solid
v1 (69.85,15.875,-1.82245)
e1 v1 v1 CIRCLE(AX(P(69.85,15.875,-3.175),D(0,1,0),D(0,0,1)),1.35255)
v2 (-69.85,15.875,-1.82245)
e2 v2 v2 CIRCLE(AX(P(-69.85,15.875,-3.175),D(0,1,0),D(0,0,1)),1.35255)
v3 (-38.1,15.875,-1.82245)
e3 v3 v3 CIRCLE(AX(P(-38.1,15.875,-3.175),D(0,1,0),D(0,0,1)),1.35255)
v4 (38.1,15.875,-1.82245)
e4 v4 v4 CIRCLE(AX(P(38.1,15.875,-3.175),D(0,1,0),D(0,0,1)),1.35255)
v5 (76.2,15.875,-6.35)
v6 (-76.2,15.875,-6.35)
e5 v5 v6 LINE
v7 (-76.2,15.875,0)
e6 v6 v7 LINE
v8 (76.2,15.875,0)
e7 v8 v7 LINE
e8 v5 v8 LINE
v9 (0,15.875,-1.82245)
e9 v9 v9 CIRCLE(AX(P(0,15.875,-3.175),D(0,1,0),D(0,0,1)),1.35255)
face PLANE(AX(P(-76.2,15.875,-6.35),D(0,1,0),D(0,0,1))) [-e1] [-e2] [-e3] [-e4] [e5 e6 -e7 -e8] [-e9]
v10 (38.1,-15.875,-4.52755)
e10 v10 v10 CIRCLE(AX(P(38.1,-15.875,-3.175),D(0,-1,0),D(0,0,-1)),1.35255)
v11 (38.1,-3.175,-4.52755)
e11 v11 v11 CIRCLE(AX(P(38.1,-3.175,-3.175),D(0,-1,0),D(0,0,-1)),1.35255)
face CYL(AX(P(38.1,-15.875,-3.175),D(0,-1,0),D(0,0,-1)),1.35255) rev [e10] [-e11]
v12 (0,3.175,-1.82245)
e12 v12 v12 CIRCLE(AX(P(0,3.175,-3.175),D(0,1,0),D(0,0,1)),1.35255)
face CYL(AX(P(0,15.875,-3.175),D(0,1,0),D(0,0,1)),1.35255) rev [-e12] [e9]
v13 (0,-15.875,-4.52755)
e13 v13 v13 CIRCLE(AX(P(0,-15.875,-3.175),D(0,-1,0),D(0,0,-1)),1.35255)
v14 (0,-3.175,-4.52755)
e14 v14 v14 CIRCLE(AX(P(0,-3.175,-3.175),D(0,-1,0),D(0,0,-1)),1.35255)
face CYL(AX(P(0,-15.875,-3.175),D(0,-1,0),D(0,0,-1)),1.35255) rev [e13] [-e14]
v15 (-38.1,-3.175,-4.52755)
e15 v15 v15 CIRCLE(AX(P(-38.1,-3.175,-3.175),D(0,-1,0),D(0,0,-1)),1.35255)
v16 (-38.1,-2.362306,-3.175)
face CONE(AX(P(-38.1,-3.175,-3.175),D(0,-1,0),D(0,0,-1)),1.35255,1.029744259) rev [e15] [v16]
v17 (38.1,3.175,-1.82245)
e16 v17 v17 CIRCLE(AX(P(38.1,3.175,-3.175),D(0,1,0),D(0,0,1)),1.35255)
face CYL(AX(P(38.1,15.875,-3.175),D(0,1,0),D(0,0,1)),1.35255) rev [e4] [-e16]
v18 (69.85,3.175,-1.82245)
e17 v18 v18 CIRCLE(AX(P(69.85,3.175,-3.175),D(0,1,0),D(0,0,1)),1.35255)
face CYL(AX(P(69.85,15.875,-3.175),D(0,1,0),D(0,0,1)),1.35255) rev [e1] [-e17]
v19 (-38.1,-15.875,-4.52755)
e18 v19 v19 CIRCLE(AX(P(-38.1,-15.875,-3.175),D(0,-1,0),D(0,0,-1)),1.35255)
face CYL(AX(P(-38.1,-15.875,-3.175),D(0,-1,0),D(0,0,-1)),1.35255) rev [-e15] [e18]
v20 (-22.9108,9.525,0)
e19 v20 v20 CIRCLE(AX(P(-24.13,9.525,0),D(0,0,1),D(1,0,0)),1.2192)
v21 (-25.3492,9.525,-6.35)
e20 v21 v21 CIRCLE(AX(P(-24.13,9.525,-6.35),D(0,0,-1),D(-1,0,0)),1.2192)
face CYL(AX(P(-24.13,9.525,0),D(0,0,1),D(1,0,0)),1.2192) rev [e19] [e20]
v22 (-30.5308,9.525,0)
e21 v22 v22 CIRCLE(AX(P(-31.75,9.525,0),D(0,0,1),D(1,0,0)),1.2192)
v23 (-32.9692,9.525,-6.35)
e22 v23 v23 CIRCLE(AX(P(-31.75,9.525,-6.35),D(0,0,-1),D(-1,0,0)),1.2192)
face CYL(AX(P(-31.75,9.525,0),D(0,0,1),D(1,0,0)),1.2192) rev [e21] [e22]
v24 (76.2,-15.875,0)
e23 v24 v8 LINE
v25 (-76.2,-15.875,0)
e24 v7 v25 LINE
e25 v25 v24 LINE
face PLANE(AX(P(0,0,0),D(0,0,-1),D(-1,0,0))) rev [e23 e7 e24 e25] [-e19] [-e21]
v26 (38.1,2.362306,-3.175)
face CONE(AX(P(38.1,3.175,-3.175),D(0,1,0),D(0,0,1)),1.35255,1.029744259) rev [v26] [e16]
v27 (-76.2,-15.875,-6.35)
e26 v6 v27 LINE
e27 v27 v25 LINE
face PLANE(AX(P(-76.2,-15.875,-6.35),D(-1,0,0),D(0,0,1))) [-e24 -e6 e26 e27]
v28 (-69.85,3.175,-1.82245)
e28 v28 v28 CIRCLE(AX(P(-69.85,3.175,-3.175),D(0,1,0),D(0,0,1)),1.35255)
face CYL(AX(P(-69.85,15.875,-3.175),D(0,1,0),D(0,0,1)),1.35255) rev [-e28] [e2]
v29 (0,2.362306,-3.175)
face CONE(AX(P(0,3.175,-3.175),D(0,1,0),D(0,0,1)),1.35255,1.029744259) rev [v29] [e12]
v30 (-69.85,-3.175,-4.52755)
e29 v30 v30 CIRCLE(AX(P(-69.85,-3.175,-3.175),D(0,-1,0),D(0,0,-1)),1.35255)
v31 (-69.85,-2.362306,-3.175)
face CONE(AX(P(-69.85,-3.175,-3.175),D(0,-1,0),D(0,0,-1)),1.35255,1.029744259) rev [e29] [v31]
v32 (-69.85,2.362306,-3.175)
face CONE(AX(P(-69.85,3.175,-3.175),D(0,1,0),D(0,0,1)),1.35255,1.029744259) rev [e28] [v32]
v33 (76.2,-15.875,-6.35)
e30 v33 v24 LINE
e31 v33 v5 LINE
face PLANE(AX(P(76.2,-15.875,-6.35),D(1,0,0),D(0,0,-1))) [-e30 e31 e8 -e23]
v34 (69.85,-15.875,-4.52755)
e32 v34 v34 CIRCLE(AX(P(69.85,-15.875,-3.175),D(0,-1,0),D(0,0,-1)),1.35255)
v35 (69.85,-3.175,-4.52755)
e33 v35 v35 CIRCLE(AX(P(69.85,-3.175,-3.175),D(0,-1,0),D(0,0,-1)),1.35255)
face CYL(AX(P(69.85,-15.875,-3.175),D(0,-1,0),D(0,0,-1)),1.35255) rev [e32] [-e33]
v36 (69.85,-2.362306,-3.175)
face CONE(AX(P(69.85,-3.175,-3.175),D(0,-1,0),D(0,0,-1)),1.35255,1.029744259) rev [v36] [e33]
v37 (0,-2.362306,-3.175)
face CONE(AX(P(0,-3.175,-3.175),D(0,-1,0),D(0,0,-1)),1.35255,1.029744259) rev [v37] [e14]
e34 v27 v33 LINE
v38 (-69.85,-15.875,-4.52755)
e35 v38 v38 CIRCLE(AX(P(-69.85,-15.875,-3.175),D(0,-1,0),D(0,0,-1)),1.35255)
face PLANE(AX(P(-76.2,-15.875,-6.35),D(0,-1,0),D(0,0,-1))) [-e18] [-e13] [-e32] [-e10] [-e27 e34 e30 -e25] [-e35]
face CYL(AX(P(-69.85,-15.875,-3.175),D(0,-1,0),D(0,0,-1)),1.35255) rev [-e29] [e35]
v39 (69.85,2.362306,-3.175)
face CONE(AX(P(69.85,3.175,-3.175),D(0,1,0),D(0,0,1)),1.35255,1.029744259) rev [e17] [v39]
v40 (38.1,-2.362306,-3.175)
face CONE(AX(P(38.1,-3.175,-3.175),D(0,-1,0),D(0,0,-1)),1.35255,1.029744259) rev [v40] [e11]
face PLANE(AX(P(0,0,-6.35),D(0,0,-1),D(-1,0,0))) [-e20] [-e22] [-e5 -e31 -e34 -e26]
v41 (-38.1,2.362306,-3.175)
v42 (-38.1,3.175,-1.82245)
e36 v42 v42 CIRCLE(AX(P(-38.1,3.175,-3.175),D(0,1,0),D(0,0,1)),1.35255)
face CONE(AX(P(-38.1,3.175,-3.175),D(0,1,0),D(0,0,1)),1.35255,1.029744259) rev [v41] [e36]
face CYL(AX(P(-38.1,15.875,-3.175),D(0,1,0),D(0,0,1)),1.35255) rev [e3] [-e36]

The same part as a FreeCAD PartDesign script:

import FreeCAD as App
import Part
import Sketcher

V = App.Vector
Q = App.Units.Quantity

doc = App.newDocument("Part")
body = doc.addObject("PartDesign::Body", "Body")

# Sketch on XY plane
sketch1 = doc.addObject("Sketcher::SketchObject", "Sketch")
body.addObject(sketch1)
sketch1.AttachmentSupport = (doc.XY_Plane, [""])
sketch1.MapMode = "FlatFace"
sketch1.addGeometry([
    Part.LineSegment(V(-76, 16, 0), V(-76, -16, 0)),
    Part.LineSegment(V(-76, -16, 0), V(76, -16, 0)),
    Part.LineSegment(V(76, -16, 0), V(76, 16, 0)),
    Part.LineSegment(V(76, 16, 0), V(-76, 16, 0)),
], False)
sketch1.addConstraint([
    Sketcher.Constraint("Coincident", 0, 2, 1, 1),
    Sketcher.Constraint("Coincident", 1, 2, 2, 1),
    Sketcher.Constraint("Coincident", 2, 2, 3, 1),
    Sketcher.Constraint("Coincident", 3, 2, 0, 1),
    Sketcher.Constraint("Vertical", 0),
    Sketcher.Constraint("Horizontal", 1),
    Sketcher.Constraint("Vertical", 2),
    Sketcher.Constraint("Horizontal", 3),
    Sketcher.Constraint("Symmetric", 0, 2, 2, 2, -1, 1),
    Sketcher.Constraint("DistanceX", 1, 1, 1, 2, Q("6 in")),
    Sketcher.Constraint("DistanceY", 0, 2, 0, 1, Q("1.25 in")),
])
pad1 = doc.addObject("PartDesign::Pad", "Pad")
body.addObject(pad1)
pad1.Profile = sketch1
pad1.Length = Q("0.25 in")
pad1.Reversed = True

# Sketch on XY plane
sketch2 = doc.addObject("Sketcher::SketchObject", "Sketch001")
body.addObject(sketch2)
sketch2.AttachmentSupport = (doc.XY_Plane, [""])
sketch2.MapMode = "FlatFace"
sketch2.addGeometry([
    Part.Circle(V(-31.8, 9.5, 0), V(0, 0, 1), 1.2),
    Part.Circle(V(-24.1, 9.5, 0), V(0, 0, 1), 1.2),
], False)
sketch2.addConstraint([
    Sketcher.Constraint("Equal", 0, 1),
    Sketcher.Constraint("Horizontal", 0, 3, 1, 3),
    Sketcher.Constraint("Diameter", 0, Q("0.096 in")),
    Sketcher.Constraint("DistanceX", 0, 3, 1, 3, Q("0.3 in")),
    Sketcher.Constraint("DistanceX", 0, 3, -1, 1, Q("1.25 in")),
    Sketcher.Constraint("DistanceY", -1, 1, 0, 3, Q("0.375 in")),
])
doc.recompute()
hole = doc.addObject("PartDesign::Hole", "Hole")
body.addObject(hole)
hole.Profile = sketch2
hole.ThreadType = "None"
hole.Diameter = Q("0.096 in")
hole.DepthType = "ThroughAll"

# Sketch on YZ plane
sketch3 = doc.addObject("Sketcher::SketchObject", "Sketch002")
body.addObject(sketch3)
sketch3.AttachmentSupport = (doc.YZ_Plane, [""])
sketch3.MapMode = "FlatFace"
sketch3.AttachmentOffset = App.Placement(V(0, 0, -2.75 * 25.4), App.Rotation())
sketch3.addGeometry([
    Part.LineSegment(V(2.4, -3.2, 0), V(15.9, -3.2, 0)),
    Part.LineSegment(V(15.9, -3.2, 0), V(15.9, -1.8, 0)),
    Part.LineSegment(V(15.9, -1.8, 0), V(3.2, -1.8, 0)),
    Part.LineSegment(V(3.2, -1.8, 0), V(2.4, -3.2, 0)),
], False)
sketch3.addGeometry(Part.LineSegment(V(15.9, -3.2, 0), V(2.4, -3.2, 0)), True)  # axis
sketch3.addConstraint([
    Sketcher.Constraint("Coincident", 0, 2, 1, 1),
    Sketcher.Constraint("Coincident", 1, 2, 2, 1),
    Sketcher.Constraint("Coincident", 2, 2, 3, 1),
    Sketcher.Constraint("Coincident", 3, 2, 0, 1),
    Sketcher.Constraint("Horizontal", 0),
    Sketcher.Constraint("Vertical", 1),
    Sketcher.Constraint("Horizontal", 2),
    Sketcher.Constraint("Horizontal", 4),
    Sketcher.Constraint("Coincident", 4, 1, 0, 2),
    Sketcher.Constraint("Equal", 0, 4),
    Sketcher.Constraint("DistanceX", 2, 2, 2, 1, Q("0.5 in")),
    Sketcher.Constraint("Angle", 3, Q("-121 deg")),
    Sketcher.Constraint("DistanceX", -1, 1, 0, 2, Q("0.625 in")),
    Sketcher.Constraint("DistanceY", 0, 2, -1, 1, Q("0.125 in")),
    Sketcher.Constraint("DistanceY", 1, 1, 1, 2, Q("1.35255 mm")),
])
groove = doc.addObject("PartDesign::Groove", "Groove")
body.addObject(groove)
groove.Profile = sketch3
groove.ReferenceAxis = (sketch3, ["Axis0"])
groove.Angle = 360
doc.recompute()

linearpattern = doc.addObject("PartDesign::LinearPattern", "LinearPattern")
body.addObject(linearpattern)
linearpattern.Originals = [groove]
linearpattern.Direction = (doc.X_Axis, [""])
linearpattern.Mode = "offset"
linearpattern.Offset = Q("1.25 in")
linearpattern.Occurrences = 2
body.Tip = linearpattern
doc.recompute()

linearpattern2 = doc.addObject("PartDesign::LinearPattern", "LinearPattern001")
body.addObject(linearpattern2)
linearpattern2.Originals = [groove]
linearpattern2.Direction = (doc.X_Axis, [""])
linearpattern2.Mode = "offset"
linearpattern2.Offset = Q("2.75 in")
linearpattern2.Occurrences = 2
body.Tip = linearpattern2
doc.recompute()

linearpattern3 = doc.addObject("PartDesign::LinearPattern", "LinearPattern002")
body.addObject(linearpattern3)
linearpattern3.Originals = [groove]
linearpattern3.Direction = (doc.X_Axis, [""])
linearpattern3.Mode = "offset"
linearpattern3.Offset = Q("4.25 in")
linearpattern3.Occurrences = 2
body.Tip = linearpattern3
doc.recompute()

linearpattern4 = doc.addObject("PartDesign::LinearPattern", "LinearPattern003")
body.addObject(linearpattern4)
linearpattern4.Originals = [groove]
linearpattern4.Direction = (doc.X_Axis, [""])
linearpattern4.Mode = "offset"
linearpattern4.Offset = Q("5.5 in")
linearpattern4.Occurrences = 2
body.Tip = linearpattern4
doc.recompute()

mirrored = doc.addObject("PartDesign::Mirrored", "Mirrored")
body.addObject(mirrored)
mirrored.Originals = [groove]
mirrored.MirrorPlane = (doc.XZ_Plane, [""])
body.Tip = mirrored

# Sketch on YZ plane
sketch4 = doc.addObject("Sketcher::SketchObject", "Sketch003")
body.addObject(sketch4)
sketch4.AttachmentSupport = (doc.YZ_Plane, [""])
sketch4.MapMode = "FlatFace"
sketch4.AttachmentOffset = App.Placement(V(0, 0, -1.5 * 25.4), App.Rotation())
sketch4.addGeometry([
    Part.LineSegment(V(-15.9, -3.2, 0), V(-2.4, -3.2, 0)),
    Part.LineSegment(V(-2.4, -3.2, 0), V(-3.2, -1.8, 0)),
    Part.LineSegment(V(-3.2, -1.8, 0), V(-15.9, -1.8, 0)),
    Part.LineSegment(V(-15.9, -1.8, 0), V(-15.9, -3.2, 0)),
], False)
sketch4.addGeometry(Part.LineSegment(V(-2.4, -3.2, 0), V(-15.9, -3.2, 0)), True)  # axis
sketch4.addConstraint([
    Sketcher.Constraint("Coincident", 0, 2, 1, 1),
    Sketcher.Constraint("Coincident", 1, 2, 2, 1),
    Sketcher.Constraint("Coincident", 2, 2, 3, 1),
    Sketcher.Constraint("Coincident", 3, 2, 0, 1),
    Sketcher.Constraint("Horizontal", 0),
    Sketcher.Constraint("Horizontal", 2),
    Sketcher.Constraint("Vertical", 3),
    Sketcher.Constraint("Horizontal", 4),
    Sketcher.Constraint("Coincident", 4, 1, 0, 2),
    Sketcher.Constraint("Vertical", 2, 2, 4, 2),
    Sketcher.Constraint("DistanceX", 2, 2, 2, 1, Q("0.5 in")),
    Sketcher.Constraint("Angle", 1, Q("121 deg")),
    Sketcher.Constraint("DistanceY", 0, 2, -1, 1, Q("0.125 in")),
    Sketcher.Constraint("DistanceX", 1, 2, -1, 1, Q("0.125 in")),
    Sketcher.Constraint("DistanceY", 3, 2, 3, 1, Q("1.35255 mm")),
])
groove2 = doc.addObject("PartDesign::Groove", "Groove001")
body.addObject(groove2)
groove2.Profile = sketch4
groove2.ReferenceAxis = (sketch4, ["Axis0"])
groove2.Angle = 360

# Sketch on YZ plane
sketch5 = doc.addObject("Sketcher::SketchObject", "Sketch004")
body.addObject(sketch5)
sketch5.AttachmentSupport = (doc.YZ_Plane, [""])
sketch5.MapMode = "FlatFace"
sketch5.addGeometry([
    Part.LineSegment(V(-15.9, -3.2, 0), V(-2.4, -3.2, 0)),
    Part.LineSegment(V(-2.4, -3.2, 0), V(-3.2, -1.8, 0)),
    Part.LineSegment(V(-3.2, -1.8, 0), V(-15.9, -1.8, 0)),
    Part.LineSegment(V(-15.9, -1.8, 0), V(-15.9, -3.2, 0)),
], False)
sketch5.addGeometry(Part.LineSegment(V(-2.4, -3.2, 0), V(-15.9, -3.2, 0)), True)  # axis
sketch5.addConstraint([
    Sketcher.Constraint("Coincident", 0, 2, 1, 1),
    Sketcher.Constraint("Coincident", 1, 2, 2, 1),
    Sketcher.Constraint("Coincident", 2, 2, 3, 1),
    Sketcher.Constraint("Coincident", 3, 2, 0, 1),
    Sketcher.Constraint("Horizontal", 0),
    Sketcher.Constraint("Horizontal", 2),
    Sketcher.Constraint("Vertical", 3),
    Sketcher.Constraint("Horizontal", 4),
    Sketcher.Constraint("Coincident", 4, 1, 0, 2),
    Sketcher.Constraint("Vertical", 2, 2, 4, 2),
    Sketcher.Constraint("DistanceX", 2, 2, 2, 1, Q("0.5 in")),
    Sketcher.Constraint("Angle", 1, Q("121 deg")),
    Sketcher.Constraint("DistanceY", 0, 2, -1, 1, Q("0.125 in")),
    Sketcher.Constraint("DistanceX", 1, 2, -1, 1, Q("0.125 in")),
    Sketcher.Constraint("DistanceY", 3, 2, 3, 1, Q("1.35255 mm")),
])
groove3 = doc.addObject("PartDesign::Groove", "Groove002")
body.addObject(groove3)
groove3.Profile = sketch5
groove3.ReferenceAxis = (sketch5, ["Axis0"])
groove3.Angle = 360

# Sketch on YZ plane
sketch6 = doc.addObject("Sketcher::SketchObject", "Sketch005")
body.addObject(sketch6)
sketch6.AttachmentSupport = (doc.YZ_Plane, [""])
sketch6.MapMode = "FlatFace"
sketch6.AttachmentOffset = App.Placement(V(0, 0, 1.5 * 25.4), App.Rotation())
sketch6.addGeometry([
    Part.LineSegment(V(-15.9, -3.2, 0), V(-2.4, -3.2, 0)),
    Part.LineSegment(V(-2.4, -3.2, 0), V(-3.2, -1.8, 0)),
    Part.LineSegment(V(-3.2, -1.8, 0), V(-15.9, -1.8, 0)),
    Part.LineSegment(V(-15.9, -1.8, 0), V(-15.9, -3.2, 0)),
], False)
sketch6.addGeometry(Part.LineSegment(V(-2.4, -3.2, 0), V(-15.9, -3.2, 0)), True)  # axis
sketch6.addConstraint([
    Sketcher.Constraint("Coincident", 0, 2, 1, 1),
    Sketcher.Constraint("Coincident", 1, 2, 2, 1),
    Sketcher.Constraint("Coincident", 2, 2, 3, 1),
    Sketcher.Constraint("Coincident", 3, 2, 0, 1),
    Sketcher.Constraint("Horizontal", 0),
    Sketcher.Constraint("Horizontal", 2),
    Sketcher.Constraint("Vertical", 3),
    Sketcher.Constraint("Horizontal", 4),
    Sketcher.Constraint("Coincident", 4, 1, 0, 2),
    Sketcher.Constraint("Vertical", 2, 2, 4, 2),
    Sketcher.Constraint("DistanceX", 2, 2, 2, 1, Q("0.5 in")),
    Sketcher.Constraint("Angle", 1, Q("121 deg")),
    Sketcher.Constraint("DistanceY", 0, 2, -1, 1, Q("0.125 in")),
    Sketcher.Constraint("DistanceX", 1, 2, -1, 1, Q("0.125 in")),
    Sketcher.Constraint("DistanceY", 3, 2, 3, 1, Q("1.35255 mm")),
])
groove4 = doc.addObject("PartDesign::Groove", "Groove003")
body.addObject(groove4)
groove4.Profile = sketch6
groove4.ReferenceAxis = (sketch6, ["Axis0"])
groove4.Angle = 360

# Sketch on YZ plane
sketch7 = doc.addObject("Sketcher::SketchObject", "Sketch006")
body.addObject(sketch7)
sketch7.AttachmentSupport = (doc.YZ_Plane, [""])
sketch7.MapMode = "FlatFace"
sketch7.AttachmentOffset = App.Placement(V(0, 0, 2.75 * 25.4), App.Rotation())
sketch7.addGeometry([
    Part.LineSegment(V(-15.9, -3.2, 0), V(-2.4, -3.2, 0)),
    Part.LineSegment(V(-2.4, -3.2, 0), V(-3.2, -1.8, 0)),
    Part.LineSegment(V(-3.2, -1.8, 0), V(-15.9, -1.8, 0)),
    Part.LineSegment(V(-15.9, -1.8, 0), V(-15.9, -3.2, 0)),
], False)
sketch7.addGeometry(Part.LineSegment(V(-2.4, -3.2, 0), V(-15.9, -3.2, 0)), True)  # axis
sketch7.addConstraint([
    Sketcher.Constraint("Coincident", 0, 2, 1, 1),
    Sketcher.Constraint("Coincident", 1, 2, 2, 1),
    Sketcher.Constraint("Coincident", 2, 2, 3, 1),
    Sketcher.Constraint("Coincident", 3, 2, 0, 1),
    Sketcher.Constraint("Horizontal", 0),
    Sketcher.Constraint("Horizontal", 2),
    Sketcher.Constraint("Vertical", 3),
    Sketcher.Constraint("Horizontal", 4),
    Sketcher.Constraint("Coincident", 4, 1, 0, 2),
    Sketcher.Constraint("Vertical", 2, 2, 4, 2),
    Sketcher.Constraint("DistanceX", 2, 2, 2, 1, Q("0.5 in")),
    Sketcher.Constraint("Angle", 1, Q("121 deg")),
    Sketcher.Constraint("DistanceY", 0, 2, -1, 1, Q("0.125 in")),
    Sketcher.Constraint("DistanceX", 1, 2, -1, 1, Q("0.125 in")),
    Sketcher.Constraint("DistanceY", 3, 2, 3, 1, Q("1.35255 mm")),
])
groove5 = doc.addObject("PartDesign::Groove", "Groove004")
body.addObject(groove5)
groove5.Profile = sketch7
groove5.ReferenceAxis = (sketch7, ["Axis0"])
groove5.Angle = 360

doc.recompute()
